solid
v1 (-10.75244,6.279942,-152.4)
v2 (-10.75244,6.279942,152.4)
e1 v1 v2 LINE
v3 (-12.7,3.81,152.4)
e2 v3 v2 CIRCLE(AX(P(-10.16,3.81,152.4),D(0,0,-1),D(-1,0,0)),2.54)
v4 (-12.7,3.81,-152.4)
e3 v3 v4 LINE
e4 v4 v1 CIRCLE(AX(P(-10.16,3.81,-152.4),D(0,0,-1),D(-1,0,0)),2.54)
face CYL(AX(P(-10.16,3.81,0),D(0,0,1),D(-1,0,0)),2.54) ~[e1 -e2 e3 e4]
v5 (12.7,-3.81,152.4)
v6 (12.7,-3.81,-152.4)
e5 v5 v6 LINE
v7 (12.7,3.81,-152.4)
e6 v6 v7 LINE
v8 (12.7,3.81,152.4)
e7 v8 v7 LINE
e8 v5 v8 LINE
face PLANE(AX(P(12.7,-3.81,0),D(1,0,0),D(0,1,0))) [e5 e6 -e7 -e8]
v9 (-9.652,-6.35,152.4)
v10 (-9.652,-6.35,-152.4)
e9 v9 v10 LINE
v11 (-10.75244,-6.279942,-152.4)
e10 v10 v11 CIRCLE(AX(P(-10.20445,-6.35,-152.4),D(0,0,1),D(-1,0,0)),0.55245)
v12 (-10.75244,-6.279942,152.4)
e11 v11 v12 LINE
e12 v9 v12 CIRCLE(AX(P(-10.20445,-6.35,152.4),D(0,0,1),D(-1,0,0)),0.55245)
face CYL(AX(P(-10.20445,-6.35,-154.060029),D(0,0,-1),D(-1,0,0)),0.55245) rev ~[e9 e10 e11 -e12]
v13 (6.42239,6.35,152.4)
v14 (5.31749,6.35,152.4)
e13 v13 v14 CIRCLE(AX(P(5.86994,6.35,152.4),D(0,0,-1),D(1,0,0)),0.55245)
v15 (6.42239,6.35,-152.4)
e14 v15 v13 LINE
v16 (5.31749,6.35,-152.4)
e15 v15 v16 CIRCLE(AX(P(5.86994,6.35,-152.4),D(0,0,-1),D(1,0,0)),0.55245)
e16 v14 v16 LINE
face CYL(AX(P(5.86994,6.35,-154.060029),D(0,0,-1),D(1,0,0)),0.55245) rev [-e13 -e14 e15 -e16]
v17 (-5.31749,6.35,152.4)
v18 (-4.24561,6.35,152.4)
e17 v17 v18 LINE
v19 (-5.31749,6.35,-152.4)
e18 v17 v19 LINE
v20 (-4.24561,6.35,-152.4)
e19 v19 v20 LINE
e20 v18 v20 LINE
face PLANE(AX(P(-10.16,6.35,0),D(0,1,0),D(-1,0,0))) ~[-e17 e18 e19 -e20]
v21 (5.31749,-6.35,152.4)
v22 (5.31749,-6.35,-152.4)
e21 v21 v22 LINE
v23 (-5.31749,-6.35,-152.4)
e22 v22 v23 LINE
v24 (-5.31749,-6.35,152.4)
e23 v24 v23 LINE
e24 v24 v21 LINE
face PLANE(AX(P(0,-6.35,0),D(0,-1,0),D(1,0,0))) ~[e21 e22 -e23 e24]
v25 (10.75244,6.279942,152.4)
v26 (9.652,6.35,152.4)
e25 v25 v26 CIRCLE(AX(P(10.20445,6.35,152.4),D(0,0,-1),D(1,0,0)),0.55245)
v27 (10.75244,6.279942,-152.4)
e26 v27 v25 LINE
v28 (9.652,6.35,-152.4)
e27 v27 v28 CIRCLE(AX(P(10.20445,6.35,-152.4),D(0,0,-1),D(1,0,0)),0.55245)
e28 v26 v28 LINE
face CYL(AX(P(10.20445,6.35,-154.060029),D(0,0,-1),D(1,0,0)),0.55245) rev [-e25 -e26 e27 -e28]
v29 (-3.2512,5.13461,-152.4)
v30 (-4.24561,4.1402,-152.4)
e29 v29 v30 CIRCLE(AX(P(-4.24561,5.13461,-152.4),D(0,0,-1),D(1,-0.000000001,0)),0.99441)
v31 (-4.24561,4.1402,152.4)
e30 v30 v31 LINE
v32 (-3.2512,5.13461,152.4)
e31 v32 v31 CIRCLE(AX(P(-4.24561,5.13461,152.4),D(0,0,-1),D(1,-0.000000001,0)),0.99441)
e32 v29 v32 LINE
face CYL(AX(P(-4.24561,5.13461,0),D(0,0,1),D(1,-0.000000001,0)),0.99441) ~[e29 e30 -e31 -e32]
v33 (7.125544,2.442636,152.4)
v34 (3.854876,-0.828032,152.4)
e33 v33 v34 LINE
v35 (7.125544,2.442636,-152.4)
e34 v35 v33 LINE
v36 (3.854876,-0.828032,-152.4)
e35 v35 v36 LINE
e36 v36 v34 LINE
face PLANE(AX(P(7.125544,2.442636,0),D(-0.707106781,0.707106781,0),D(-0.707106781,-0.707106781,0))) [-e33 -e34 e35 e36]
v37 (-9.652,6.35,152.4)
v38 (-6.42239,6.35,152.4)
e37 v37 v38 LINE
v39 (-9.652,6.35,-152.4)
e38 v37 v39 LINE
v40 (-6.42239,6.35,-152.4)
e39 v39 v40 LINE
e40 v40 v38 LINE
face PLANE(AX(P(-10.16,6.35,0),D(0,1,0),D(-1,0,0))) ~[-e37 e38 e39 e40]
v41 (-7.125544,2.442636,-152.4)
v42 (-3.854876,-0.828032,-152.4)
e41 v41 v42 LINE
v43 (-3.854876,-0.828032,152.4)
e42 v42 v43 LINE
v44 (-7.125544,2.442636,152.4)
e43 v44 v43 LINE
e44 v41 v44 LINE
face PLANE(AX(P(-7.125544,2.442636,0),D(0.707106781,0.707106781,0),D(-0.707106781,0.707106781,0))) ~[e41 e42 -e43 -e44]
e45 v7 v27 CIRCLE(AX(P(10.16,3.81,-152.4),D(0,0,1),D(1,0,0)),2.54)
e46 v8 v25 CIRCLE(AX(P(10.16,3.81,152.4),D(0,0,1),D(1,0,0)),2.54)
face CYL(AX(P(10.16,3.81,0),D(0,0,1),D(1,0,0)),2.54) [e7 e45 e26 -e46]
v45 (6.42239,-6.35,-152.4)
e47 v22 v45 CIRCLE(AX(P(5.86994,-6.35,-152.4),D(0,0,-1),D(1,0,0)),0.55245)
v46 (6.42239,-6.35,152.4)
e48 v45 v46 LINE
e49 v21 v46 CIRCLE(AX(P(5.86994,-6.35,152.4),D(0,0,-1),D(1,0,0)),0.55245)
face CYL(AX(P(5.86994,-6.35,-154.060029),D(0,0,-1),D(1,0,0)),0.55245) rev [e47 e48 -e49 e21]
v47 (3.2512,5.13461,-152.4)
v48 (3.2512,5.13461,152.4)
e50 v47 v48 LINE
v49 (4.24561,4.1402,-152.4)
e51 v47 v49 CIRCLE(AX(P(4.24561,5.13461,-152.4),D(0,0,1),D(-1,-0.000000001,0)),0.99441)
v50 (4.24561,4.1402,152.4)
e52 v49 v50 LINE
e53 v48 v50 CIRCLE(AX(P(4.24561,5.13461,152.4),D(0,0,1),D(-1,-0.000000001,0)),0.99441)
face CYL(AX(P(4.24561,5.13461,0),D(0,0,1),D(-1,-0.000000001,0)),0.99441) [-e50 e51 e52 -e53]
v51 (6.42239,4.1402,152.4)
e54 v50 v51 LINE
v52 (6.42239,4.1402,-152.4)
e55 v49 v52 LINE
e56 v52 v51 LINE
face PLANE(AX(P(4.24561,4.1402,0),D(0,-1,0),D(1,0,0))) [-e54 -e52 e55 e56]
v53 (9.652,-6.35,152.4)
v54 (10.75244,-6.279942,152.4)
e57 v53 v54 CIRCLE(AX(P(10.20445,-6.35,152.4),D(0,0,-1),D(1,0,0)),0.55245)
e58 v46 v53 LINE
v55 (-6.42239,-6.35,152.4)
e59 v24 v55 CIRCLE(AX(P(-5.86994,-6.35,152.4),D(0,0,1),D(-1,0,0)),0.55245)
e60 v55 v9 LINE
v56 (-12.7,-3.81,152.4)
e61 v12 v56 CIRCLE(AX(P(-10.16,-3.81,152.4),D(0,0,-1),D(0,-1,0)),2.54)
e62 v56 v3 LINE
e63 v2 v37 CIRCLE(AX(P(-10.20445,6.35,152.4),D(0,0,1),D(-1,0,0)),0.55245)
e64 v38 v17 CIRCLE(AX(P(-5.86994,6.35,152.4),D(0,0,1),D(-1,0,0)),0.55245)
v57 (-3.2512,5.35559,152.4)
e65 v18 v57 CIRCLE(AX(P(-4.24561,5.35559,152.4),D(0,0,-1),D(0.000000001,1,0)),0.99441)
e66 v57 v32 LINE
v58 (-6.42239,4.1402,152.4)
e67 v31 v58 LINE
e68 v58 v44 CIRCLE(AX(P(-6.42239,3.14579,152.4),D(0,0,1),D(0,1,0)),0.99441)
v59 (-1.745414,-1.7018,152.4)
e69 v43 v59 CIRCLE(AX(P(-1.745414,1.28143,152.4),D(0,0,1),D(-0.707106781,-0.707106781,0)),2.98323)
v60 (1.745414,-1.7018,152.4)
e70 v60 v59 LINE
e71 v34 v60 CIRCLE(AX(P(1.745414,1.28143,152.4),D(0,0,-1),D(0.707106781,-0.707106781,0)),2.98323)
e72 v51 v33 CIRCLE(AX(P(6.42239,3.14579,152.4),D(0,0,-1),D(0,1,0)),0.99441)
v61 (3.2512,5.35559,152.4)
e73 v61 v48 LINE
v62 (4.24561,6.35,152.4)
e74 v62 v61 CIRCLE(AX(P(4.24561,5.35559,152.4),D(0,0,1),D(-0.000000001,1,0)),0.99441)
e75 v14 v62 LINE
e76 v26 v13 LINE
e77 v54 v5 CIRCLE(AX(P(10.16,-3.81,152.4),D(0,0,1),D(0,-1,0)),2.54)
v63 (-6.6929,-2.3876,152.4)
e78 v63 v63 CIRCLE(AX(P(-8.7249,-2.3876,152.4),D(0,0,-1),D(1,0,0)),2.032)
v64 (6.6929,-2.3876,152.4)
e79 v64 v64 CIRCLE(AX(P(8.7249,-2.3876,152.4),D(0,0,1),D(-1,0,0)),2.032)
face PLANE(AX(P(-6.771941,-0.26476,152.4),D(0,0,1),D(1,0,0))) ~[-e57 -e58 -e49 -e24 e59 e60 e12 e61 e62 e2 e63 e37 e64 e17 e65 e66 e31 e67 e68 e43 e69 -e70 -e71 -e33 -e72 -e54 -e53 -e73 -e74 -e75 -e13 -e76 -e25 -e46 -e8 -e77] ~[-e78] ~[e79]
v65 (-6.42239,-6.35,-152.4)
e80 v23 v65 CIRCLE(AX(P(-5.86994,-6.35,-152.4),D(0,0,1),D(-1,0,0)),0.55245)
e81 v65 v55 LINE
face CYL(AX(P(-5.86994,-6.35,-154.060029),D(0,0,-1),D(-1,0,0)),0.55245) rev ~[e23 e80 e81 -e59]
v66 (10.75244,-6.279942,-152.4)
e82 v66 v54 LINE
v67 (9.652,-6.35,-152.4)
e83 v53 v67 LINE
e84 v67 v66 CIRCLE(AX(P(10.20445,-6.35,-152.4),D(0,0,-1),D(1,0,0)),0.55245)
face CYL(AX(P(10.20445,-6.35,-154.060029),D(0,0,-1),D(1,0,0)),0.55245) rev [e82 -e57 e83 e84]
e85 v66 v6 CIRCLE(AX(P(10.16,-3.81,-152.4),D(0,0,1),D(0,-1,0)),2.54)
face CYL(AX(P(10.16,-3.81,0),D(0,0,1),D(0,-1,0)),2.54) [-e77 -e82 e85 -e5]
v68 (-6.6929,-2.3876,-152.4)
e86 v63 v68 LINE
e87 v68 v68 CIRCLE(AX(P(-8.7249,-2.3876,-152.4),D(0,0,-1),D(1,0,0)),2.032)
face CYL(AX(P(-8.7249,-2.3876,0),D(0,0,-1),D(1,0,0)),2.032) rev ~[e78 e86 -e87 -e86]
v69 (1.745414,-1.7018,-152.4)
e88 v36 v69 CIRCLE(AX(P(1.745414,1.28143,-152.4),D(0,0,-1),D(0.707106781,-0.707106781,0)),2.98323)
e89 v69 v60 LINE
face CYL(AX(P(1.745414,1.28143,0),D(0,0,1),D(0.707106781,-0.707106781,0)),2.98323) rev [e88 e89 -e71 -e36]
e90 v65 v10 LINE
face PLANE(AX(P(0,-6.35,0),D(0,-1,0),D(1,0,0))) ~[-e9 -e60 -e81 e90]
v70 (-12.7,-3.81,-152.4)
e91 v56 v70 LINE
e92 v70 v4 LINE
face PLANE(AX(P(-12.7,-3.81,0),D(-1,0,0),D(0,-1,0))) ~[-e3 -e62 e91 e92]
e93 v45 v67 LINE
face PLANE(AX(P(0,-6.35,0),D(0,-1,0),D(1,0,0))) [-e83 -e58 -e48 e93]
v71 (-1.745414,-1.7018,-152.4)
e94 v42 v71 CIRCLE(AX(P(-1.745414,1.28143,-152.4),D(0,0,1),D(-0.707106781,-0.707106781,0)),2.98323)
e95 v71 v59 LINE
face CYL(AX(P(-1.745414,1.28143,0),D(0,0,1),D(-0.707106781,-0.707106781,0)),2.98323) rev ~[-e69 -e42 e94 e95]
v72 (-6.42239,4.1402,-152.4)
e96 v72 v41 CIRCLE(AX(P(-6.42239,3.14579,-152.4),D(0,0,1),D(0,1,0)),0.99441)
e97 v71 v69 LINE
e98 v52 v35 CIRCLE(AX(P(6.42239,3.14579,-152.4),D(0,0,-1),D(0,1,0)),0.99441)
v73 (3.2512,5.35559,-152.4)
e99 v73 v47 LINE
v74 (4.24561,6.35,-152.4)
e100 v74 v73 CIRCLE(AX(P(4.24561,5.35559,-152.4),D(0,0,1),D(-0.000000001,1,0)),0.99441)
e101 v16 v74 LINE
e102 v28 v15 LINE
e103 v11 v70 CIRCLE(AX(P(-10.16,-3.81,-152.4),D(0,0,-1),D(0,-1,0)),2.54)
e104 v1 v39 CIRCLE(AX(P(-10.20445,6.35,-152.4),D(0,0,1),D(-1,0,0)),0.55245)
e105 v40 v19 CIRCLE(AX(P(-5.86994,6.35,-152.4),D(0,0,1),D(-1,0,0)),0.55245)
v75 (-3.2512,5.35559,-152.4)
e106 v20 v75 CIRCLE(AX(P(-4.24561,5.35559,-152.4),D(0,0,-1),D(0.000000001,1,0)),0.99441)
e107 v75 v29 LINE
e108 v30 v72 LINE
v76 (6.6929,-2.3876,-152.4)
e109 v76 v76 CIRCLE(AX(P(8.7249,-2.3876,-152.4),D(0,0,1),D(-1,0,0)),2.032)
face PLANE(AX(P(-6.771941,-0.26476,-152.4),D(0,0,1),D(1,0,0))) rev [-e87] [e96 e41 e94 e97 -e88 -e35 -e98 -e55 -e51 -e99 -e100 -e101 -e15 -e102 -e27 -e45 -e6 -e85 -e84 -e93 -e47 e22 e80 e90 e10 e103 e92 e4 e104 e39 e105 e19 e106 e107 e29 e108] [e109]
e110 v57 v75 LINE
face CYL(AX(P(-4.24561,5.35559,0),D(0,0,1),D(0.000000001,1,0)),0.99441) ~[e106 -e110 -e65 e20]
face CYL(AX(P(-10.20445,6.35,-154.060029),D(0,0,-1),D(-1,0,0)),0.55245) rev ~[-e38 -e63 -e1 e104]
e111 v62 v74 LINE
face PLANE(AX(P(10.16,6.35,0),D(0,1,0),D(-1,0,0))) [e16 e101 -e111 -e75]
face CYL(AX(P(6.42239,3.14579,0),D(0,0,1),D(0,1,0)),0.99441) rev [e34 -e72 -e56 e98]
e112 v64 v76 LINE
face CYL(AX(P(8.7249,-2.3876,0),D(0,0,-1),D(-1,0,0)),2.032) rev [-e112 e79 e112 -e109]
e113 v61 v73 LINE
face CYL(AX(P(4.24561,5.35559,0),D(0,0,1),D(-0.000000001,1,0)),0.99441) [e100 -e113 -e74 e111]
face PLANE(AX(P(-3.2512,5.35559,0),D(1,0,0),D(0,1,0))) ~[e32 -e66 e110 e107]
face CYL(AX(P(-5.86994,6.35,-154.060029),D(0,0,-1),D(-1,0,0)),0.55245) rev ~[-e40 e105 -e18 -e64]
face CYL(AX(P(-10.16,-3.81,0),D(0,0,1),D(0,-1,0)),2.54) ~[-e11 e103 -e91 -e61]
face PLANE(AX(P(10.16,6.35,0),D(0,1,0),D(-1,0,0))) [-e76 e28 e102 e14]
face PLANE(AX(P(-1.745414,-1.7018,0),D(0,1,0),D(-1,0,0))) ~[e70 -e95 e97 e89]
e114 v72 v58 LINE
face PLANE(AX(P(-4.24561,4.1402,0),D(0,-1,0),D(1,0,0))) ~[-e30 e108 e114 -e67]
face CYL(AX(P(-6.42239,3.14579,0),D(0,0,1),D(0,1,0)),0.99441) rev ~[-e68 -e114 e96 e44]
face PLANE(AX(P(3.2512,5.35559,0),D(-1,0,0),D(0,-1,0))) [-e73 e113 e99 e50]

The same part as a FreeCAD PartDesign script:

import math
import FreeCAD as App
import Part
import Sketcher
from FreeCAD import Vector
Q = App.Units.Quantity

doc = App.newDocument("Part")
body = doc.addObject("PartDesign::Body", "Body")

# Sketch on XY plane
sketch1 = body.newObject("Sketcher::SketchObject", "Sketch")
sketch1.AttachmentSupport = (doc.getObject("XY_Plane"), [""])
sketch1.MapMode = "FlatFace"
sketch1.addGeometry([
    Part.LineSegment(Vector(3.2512, 5.35559, 0), Vector(3.2512, 5.13461, 0)),  # 0
    Part.ArcOfCircle(Part.Circle(Vector(4.24561, 5.13461, 0), Vector(0, 0, 1), 0.99441), math.radians(-180), math.radians(-90)),  # 1
    Part.LineSegment(Vector(4.24561, 4.1402, 0), Vector(6.42239, 4.1402, 0)),  # 2
    Part.ArcOfCircle(Part.Circle(Vector(6.42239, 3.14579, 0), Vector(0, 0, 1), 0.99441), math.radians(-45), math.radians(90)),  # 3
    Part.LineSegment(Vector(7.125544, 2.442636, 0), Vector(3.854876, -0.828032, 0)),  # 4
    Part.ArcOfCircle(Part.Circle(Vector(1.745414, 1.28143, 0), Vector(0, 0, 1), 2.98323), math.radians(-90), math.radians(-45)),  # 5
    Part.LineSegment(Vector(1.745414, -1.7018, 0), Vector(0, -1.7018, 0)),  # 6
    Part.LineSegment(Vector(0, -1.7018, 0), Vector(0, -6.35, 0)),  # 7
    Part.LineSegment(Vector(0, -6.35, 0), Vector(10.16, -6.35, 0)),  # 8
    Part.ArcOfCircle(Part.Circle(Vector(10.16, -3.81, 0), Vector(0, 0, 1), 2.54), math.radians(-90), math.radians(0)),  # 9
    Part.LineSegment(Vector(12.7, -3.81, 0), Vector(12.7, 3.81, 0)),  # 10
    Part.ArcOfCircle(Part.Circle(Vector(10.16, 3.81, 0), Vector(0, 0, 1), 2.54), math.radians(0), math.radians(90)),  # 11
    Part.LineSegment(Vector(10.16, 6.35, 0), Vector(4.24561, 6.35, 0)),  # 12
    Part.ArcOfCircle(Part.Circle(Vector(4.24561, 5.35559, 0), Vector(0, 0, 1), 0.99441), math.radians(90), math.radians(180)),  # 13
    Part.Circle(Vector(8.7249, -2.3876, 0), Vector(0, 0, 1), 2.032),  # 14
], False)
sketch1.addConstraint([
    Sketcher.Constraint("Tangent", 0, 2, 1, 1),
    Sketcher.Constraint("Tangent", 1, 2, 2, 1),
    Sketcher.Constraint("Tangent", 2, 2, 3, 2),
    Sketcher.Constraint("Tangent", 3, 1, 4, 1),
    Sketcher.Constraint("Tangent", 4, 2, 5, 2),
    Sketcher.Constraint("Tangent", 5, 1, 6, 1),
    Sketcher.Constraint("Coincident", 6, 2, 7, 1),
    Sketcher.Constraint("Coincident", 7, 2, 8, 1),
    Sketcher.Constraint("Tangent", 8, 2, 9, 1),
    Sketcher.Constraint("Tangent", 9, 2, 10, 1),
    Sketcher.Constraint("Tangent", 10, 2, 11, 1),
    Sketcher.Constraint("Tangent", 11, 2, 12, 1),
    Sketcher.Constraint("Tangent", 12, 2, 13, 1),
    Sketcher.Constraint("Tangent", 13, 2, 0, 1),
    Sketcher.Constraint("Vertical", 0),
    Sketcher.Constraint("Horizontal", 2),
    Sketcher.Constraint("Horizontal", 6),
    Sketcher.Constraint("Vertical", 7),
    Sketcher.Constraint("Horizontal", 8),
    Sketcher.Constraint("Vertical", 10),
    Sketcher.Constraint("Horizontal", 12),
    Sketcher.Constraint("Equal", 1, 3),
    Sketcher.Constraint("Equal", 9, 11),
    Sketcher.Constraint("Equal", 3, 13),
    Sketcher.Constraint("PointOnObject", 6, 2, -2),
    Sketcher.Constraint("Radius", 9, Q("0.1 in")),
    Sketcher.Constraint("Diameter", 14, Q("0.16 in")),
    Sketcher.Constraint("DistanceX", 8, 1, 8, 2, Q("0.4 in")),
    Sketcher.Constraint("DistanceY", 10, 1, 10, 2, Q("0.3 in")),
    Sketcher.Constraint("Angle", 4, Q("-135 deg")),
    Sketcher.Constraint("DistanceY", 7, 2, 7, 1, Q("0.183 in")),
    Sketcher.Constraint("DistanceY", 9, 3, -1, 1, Q("0.15 in")),
    Sketcher.Constraint("DistanceY", 5, 1, 1, 2, Q("0.23 in")),
    Sketcher.Constraint("DistanceX", 2, 1, 2, 2, Q("0.0857 in")),
    Sketcher.Constraint("DistanceY", 0, 2, 0, 1, Q("0.0087 in")),
    Sketcher.Constraint("DistanceY", 14, 3, -1, 1, Q("0.094 in")),
    Sketcher.Constraint("DistanceX", -1, 1, 0, 2, Q("0.128 in")),
    Sketcher.Constraint("Radius", 5, Q("2.98323 mm")),
    Sketcher.Constraint("DistanceX", -1, 1, 14, 3, Q("0.3435 in")),
])
pad1 = body.newObject("PartDesign::Pad", "Pad")
pad1.Profile = sketch1
pad1.Length = Q("12 in")
pad1.Midplane = True

# Sketch on XY plane
sketch2 = body.newObject("Sketcher::SketchObject", "Sketch001")
sketch2.AttachmentSupport = (doc.getObject("XY_Plane"), [""])
sketch2.MapMode = "FlatFace"
sketch2.addGeometry([
    Part.Circle(Vector(5.86994, 6.35, 0), Vector(0, 0, 1), 0.55245),
    Part.Circle(Vector(10.20445, 6.35, 0), Vector(0, 0, 1), 0.55245),
    Part.Circle(Vector(5.86994, -6.35, 0), Vector(0, 0, 1), 0.55245),
    Part.Circle(Vector(10.20445, -6.35, 0), Vector(0, 0, 1), 0.55245),
], False)
sketch2.addConstraint([
    Sketcher.Constraint("Equal", 0, 1),
    Sketcher.Constraint("Equal", 1, 2),
    Sketcher.Constraint("Equal", 2, 3),
    Sketcher.Constraint("Symmetric", 0, 3, 2, 3, -1),
    Sketcher.Constraint("Symmetric", 1, 3, 3, 3, -1),
    Sketcher.Constraint("Horizontal", 0, 3, 1, 3),
    Sketcher.Constraint("Diameter", 0, Q("0.0435 in")),
    Sketcher.Constraint("DistanceY", 2, 3, 0, 3, Q("0.5 in")),
    Sketcher.Constraint("DistanceX", -1, 1, 0, 3, Q("0.2311 in")),
    Sketcher.Constraint("DistanceX", -1, 1, 1, 3, Q("10.20445 mm")),
])
pocket1 = body.newObject("PartDesign::Pocket", "Pocket")
pocket1.Profile = sketch2
pocket1.Type = "ThroughAll"
pocket1.Midplane = True
body2 = doc.addObject("PartDesign::Body", "Body001")
doc.recompute()

body2.BaseFeature = body
doc.recompute()

mirroring = doc.addObject("Part::Mirroring", "Mirroring")
mirroring.Source = body
mirroring.Base = Vector(0, 0, 0)
mirroring.Normal = Vector(1, 0, 0)
body3 = doc.addObject("PartDesign::Body", "Body002")
body3.BaseFeature = mirroring
boolean = body2.newObject("PartDesign::Boolean", "Boolean")
boolean.Type = "Fuse"
boolean.addObjects([body3])
doc.recompute()
mirroring.Visibility = False

doc.recompute()
